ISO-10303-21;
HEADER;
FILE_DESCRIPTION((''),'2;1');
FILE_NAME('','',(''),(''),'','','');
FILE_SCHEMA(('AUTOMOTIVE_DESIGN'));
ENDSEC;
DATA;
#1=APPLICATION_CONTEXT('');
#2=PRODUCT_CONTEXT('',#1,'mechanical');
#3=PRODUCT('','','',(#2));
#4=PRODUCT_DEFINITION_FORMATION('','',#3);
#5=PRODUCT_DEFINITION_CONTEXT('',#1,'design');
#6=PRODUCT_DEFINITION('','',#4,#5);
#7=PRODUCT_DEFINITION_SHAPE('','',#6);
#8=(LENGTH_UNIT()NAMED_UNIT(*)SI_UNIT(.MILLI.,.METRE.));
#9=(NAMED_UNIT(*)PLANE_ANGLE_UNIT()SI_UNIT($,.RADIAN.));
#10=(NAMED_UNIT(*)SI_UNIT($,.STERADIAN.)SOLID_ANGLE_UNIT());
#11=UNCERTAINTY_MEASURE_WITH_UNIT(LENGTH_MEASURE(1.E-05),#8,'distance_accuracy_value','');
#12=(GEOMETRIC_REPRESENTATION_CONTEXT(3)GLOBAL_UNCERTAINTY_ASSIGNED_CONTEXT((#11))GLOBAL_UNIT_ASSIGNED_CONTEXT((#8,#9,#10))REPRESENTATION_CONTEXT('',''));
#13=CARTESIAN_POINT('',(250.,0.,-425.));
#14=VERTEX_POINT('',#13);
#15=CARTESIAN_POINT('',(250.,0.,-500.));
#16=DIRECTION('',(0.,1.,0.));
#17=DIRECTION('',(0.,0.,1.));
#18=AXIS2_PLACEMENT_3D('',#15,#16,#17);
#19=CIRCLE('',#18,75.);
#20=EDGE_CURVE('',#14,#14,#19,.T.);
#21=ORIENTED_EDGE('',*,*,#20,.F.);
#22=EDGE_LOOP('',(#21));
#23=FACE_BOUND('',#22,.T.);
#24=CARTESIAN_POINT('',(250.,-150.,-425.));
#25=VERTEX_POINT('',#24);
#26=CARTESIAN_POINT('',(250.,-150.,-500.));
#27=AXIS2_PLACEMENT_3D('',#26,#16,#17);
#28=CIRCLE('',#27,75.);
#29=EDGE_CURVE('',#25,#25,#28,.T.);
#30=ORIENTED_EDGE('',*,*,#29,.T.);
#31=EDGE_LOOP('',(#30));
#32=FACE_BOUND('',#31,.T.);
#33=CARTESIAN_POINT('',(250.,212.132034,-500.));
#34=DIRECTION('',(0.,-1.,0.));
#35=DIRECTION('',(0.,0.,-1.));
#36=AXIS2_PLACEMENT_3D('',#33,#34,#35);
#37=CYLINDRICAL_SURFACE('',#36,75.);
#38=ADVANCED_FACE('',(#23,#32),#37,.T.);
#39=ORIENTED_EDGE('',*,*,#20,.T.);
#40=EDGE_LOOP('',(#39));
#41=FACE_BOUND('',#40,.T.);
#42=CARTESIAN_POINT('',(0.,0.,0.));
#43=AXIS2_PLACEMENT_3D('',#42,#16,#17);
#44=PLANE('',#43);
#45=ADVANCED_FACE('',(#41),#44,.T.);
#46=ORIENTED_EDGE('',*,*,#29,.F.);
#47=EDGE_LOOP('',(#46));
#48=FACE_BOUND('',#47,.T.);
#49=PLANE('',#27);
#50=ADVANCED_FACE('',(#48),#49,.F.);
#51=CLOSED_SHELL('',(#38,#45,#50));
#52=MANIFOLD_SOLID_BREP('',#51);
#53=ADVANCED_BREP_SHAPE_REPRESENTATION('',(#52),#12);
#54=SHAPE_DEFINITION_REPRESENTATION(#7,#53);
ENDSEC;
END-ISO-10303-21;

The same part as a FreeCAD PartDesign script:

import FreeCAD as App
import Part
import Sketcher
from FreeCAD import Vector

doc = App.newDocument("Part")
params = doc.addObject("Spreadsheet::Sheet", "Params")
for row, (alias, value) in enumerate([
    ("sketch1_diameter", "150 mm"),
    ("pad1_length", "150 mm"),
], start=1):
    params.set(f"A{row}", alias)
    params.set(f"B{row}", "=" + value)
    params.setAlias(f"B{row}", alias)

body = doc.addObject("PartDesign::Body", "Body")

sketch1 = body.newObject("Sketcher::SketchObject", "Sketch")
sketch1.AttachmentSupport = (doc.getObject("XZ_Plane"), [""])
sketch1.MapMode = "FlatFace"
sketch1.AttachmentOffset = App.Placement(Vector(0, 0, 150), App.Rotation())
sketch1.addGeometry(Part.Circle(Vector(250, -500, 0), Vector(0, 0, 1), 75), False)
sketch1.addConstraint([
    Sketcher.Constraint("Diameter", 0, 150.0),
    Sketcher.Constraint("DistanceX", -1, 1, 0, 3, 250.0),
    Sketcher.Constraint("DistanceY", 0, 3, -1, 1, 500.0),
])
sketch1.setExpression("Constraints[0]", "Params.sketch1_diameter")
pad1 = body.newObject("PartDesign::Pad", "Pad")
pad1.Profile = sketch1
pad1.setExpression("Length", "Params.pad1_length")
pad1.Reversed = True

doc.recompute()
